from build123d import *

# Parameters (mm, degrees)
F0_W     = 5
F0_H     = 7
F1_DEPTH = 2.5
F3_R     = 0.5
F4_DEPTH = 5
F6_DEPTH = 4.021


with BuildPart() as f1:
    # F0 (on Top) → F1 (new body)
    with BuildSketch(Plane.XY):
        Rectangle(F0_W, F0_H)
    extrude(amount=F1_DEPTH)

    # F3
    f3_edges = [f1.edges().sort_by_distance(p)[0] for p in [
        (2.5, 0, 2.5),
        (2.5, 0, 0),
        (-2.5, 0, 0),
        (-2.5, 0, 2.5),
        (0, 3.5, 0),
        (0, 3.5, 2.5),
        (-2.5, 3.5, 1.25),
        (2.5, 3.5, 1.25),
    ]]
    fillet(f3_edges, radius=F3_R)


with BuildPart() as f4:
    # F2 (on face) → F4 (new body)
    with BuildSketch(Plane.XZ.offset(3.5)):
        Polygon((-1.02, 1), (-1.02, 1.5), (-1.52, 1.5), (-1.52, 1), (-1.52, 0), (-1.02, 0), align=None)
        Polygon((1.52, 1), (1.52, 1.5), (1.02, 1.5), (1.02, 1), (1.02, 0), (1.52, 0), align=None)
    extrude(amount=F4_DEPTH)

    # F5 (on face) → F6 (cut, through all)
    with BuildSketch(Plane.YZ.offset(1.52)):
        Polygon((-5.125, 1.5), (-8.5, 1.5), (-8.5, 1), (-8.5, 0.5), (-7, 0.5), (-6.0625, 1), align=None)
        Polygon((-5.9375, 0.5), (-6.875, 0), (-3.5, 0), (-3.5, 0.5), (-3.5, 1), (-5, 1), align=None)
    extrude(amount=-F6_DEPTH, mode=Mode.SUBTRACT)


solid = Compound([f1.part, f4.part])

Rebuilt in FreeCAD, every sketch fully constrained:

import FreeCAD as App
import Part
import Sketcher
from FreeCAD import Vector
Q = App.Units.Quantity


def edges_at(feature, points):
    """Names of the edges that pass closest to the given points."""
    edges = feature.Shape.Edges
    near = lambda p: min(range(len(edges)), key=lambda i: edges[i].distToShape(Part.Vertex(*p))[0])
    return sorted({f"Edge{near(p) + 1}" for p in points})


def add_polygon(sketch, points):
    """Adds a closed chain of lines whose ends are joined by coincident constraints."""
    first, n = sketch.GeometryCount, len(points)
    for a, b in zip(points, points[1:] + points[:1]):
        sketch.addGeometry(Part.LineSegment(App.Vector(*a, 0), App.Vector(*b, 0)), False)
    for i in range(n):
        sketch.addConstraint(Sketcher.Constraint("Coincident", first + i, 2, first + (i + 1) % n, 1))

doc = App.newDocument("Part")
body = doc.addObject("PartDesign::Body", "Body")

sketch1 = body.newObject("Sketcher::SketchObject", "Sketch")
sketch1.AttachmentSupport = (doc.getObject("XY_Plane"), [""])
sketch1.MapMode = "FlatFace"
add_polygon(sketch1, [(-2, 4), (-2, -4), (2, -4), (2, 4)])
sketch1.addConstraint([
    Sketcher.Constraint("Vertical", 0),
    Sketcher.Constraint("Horizontal", 1),
    Sketcher.Constraint("Vertical", 2),
    Sketcher.Constraint("Horizontal", 3),
    Sketcher.Constraint("Symmetric", 0, 2, 2, 2, -1, 1),
    Sketcher.Constraint("DistanceX", 1, 1, 1, 2, Q("5 mm")),
    Sketcher.Constraint("DistanceY", 0, 2, 0, 1, Q("7 mm")),
])
pad1 = body.newObject("PartDesign::Pad", "Pad")
pad1.Profile = sketch1
pad1.Length = 2.5
doc.recompute()

fillet = body.newObject("PartDesign::Fillet", "Fillet")
fillet.Base = (pad1, edges_at(pad1, [
    (2.5, 0, 2.5),
    (2.5, 0, 0),
    (-2.5, 0, 0),
    (-2.5, 0, 2.5),
    (0, 3.5, 0),
    (0, 3.5, 2.5),
    (-2.5, 3.5, 1.25),
    (2.5, 3.5, 1.25),
]))
fillet.Radius = 0.5
body2 = doc.addObject("PartDesign::Body", "Body001")
body2.AllowCompound = True

sketch2 = body2.newObject("Sketcher::SketchObject", "Sketch001")
sketch2.AttachmentSupport = (doc.getObject("XZ_Plane001"), [""])
sketch2.MapMode = "FlatFace"
sketch2.AttachmentOffset = App.Placement(Vector(0, 0, 3.5), App.Rotation())
add_polygon(sketch2, [(-1, 1.5), (-1.5, 1.5), (-1.5, 0), (-1, 0)])
add_polygon(sketch2, [(1.5, 1.5), (1, 1.5), (1, 0), (1.5, 0)])
sketch2.addConstraint([
    Sketcher.Constraint("Horizontal", 0),
    Sketcher.Constraint("Vertical", 1),
    Sketcher.Constraint("Horizontal", 2),
    Sketcher.Constraint("Vertical", 3),
    Sketcher.Constraint("Horizontal", 4),
    Sketcher.Constraint("Vertical", 5),
    Sketcher.Constraint("Horizontal", 6),
    Sketcher.Constraint("Vertical", 7),
    Sketcher.Constraint("Symmetric", 2, 2, 5, 2, -1, 1),
    Sketcher.Constraint("Symmetric", 1, 2, 6, 2, -2),
    Sketcher.Constraint("Horizontal", 3, 2, 4, 2),
    Sketcher.Constraint("DistanceX", 0, 2, 0, 1, Q("0.5 mm")),
    Sketcher.Constraint("DistanceY", 1, 2, 1, 1, Q("1.5 mm")),
    Sketcher.Constraint("DistanceX", 0, 2, -1, 1, Q("1.52 mm")),
])
pad2 = body2.newObject("PartDesign::Pad", "Pad001")
pad2.Profile = sketch2
pad2.Length = 5

sketch3 = body2.newObject("Sketcher::SketchObject", "Sketch002")
sketch3.AttachmentSupport = (doc.getObject("YZ_Plane001"), [""])
sketch3.MapMode = "FlatFace"
sketch3.AttachmentOffset = App.Placement(Vector(0, 0, 1.52), App.Rotation())
add_polygon(sketch3, [(-5.1, 1.5), (-8.5, 1.5), (-8.5, 0.5), (-7, 0.5)])
add_polygon(sketch3, [(-6.9, 0), (-3.5, 0), (-3.5, 1), (-5, 1)])
sketch3.addConstraint([
    Sketcher.Constraint("Horizontal", 0),
    Sketcher.Constraint("Vertical", 1),
    Sketcher.Constraint("Horizontal", 2),
    Sketcher.Constraint("Horizontal", 4),
    Sketcher.Constraint("Vertical", 5),
    Sketcher.Constraint("Horizontal", 6),
    Sketcher.Constraint("PointOnObject", 4, 2, -1),
    Sketcher.Constraint("Parallel", 3, 7),
    Sketcher.Constraint("Equal", 0, 4),
    Sketcher.Constraint("Equal", 2, 6),
    Sketcher.Constraint("DistanceY", 1, 2, 1, 1, Q("1 mm")),
    Sketcher.Constraint("DistanceX", 2, 1, 2, 2, Q("1.5 mm")),
    Sketcher.Constraint("DistanceX", 2, 2, -1, 1, Q("7 mm")),
    Sketcher.Constraint("DistanceX", 6, 2, -1, 1, Q("5 mm")),
    Sketcher.Constraint("DistanceY", -1, 1, 0, 2, Q("1.5 mm")),
    Sketcher.Constraint("DistanceX", 0, 2, 0, 1, Q("3.375 mm")),
])
pocket1 = body2.newObject("PartDesign::Pocket", "Pocket")
pocket1.Profile = sketch3
pocket1.Type = "ThroughAll"

doc.recompute()
